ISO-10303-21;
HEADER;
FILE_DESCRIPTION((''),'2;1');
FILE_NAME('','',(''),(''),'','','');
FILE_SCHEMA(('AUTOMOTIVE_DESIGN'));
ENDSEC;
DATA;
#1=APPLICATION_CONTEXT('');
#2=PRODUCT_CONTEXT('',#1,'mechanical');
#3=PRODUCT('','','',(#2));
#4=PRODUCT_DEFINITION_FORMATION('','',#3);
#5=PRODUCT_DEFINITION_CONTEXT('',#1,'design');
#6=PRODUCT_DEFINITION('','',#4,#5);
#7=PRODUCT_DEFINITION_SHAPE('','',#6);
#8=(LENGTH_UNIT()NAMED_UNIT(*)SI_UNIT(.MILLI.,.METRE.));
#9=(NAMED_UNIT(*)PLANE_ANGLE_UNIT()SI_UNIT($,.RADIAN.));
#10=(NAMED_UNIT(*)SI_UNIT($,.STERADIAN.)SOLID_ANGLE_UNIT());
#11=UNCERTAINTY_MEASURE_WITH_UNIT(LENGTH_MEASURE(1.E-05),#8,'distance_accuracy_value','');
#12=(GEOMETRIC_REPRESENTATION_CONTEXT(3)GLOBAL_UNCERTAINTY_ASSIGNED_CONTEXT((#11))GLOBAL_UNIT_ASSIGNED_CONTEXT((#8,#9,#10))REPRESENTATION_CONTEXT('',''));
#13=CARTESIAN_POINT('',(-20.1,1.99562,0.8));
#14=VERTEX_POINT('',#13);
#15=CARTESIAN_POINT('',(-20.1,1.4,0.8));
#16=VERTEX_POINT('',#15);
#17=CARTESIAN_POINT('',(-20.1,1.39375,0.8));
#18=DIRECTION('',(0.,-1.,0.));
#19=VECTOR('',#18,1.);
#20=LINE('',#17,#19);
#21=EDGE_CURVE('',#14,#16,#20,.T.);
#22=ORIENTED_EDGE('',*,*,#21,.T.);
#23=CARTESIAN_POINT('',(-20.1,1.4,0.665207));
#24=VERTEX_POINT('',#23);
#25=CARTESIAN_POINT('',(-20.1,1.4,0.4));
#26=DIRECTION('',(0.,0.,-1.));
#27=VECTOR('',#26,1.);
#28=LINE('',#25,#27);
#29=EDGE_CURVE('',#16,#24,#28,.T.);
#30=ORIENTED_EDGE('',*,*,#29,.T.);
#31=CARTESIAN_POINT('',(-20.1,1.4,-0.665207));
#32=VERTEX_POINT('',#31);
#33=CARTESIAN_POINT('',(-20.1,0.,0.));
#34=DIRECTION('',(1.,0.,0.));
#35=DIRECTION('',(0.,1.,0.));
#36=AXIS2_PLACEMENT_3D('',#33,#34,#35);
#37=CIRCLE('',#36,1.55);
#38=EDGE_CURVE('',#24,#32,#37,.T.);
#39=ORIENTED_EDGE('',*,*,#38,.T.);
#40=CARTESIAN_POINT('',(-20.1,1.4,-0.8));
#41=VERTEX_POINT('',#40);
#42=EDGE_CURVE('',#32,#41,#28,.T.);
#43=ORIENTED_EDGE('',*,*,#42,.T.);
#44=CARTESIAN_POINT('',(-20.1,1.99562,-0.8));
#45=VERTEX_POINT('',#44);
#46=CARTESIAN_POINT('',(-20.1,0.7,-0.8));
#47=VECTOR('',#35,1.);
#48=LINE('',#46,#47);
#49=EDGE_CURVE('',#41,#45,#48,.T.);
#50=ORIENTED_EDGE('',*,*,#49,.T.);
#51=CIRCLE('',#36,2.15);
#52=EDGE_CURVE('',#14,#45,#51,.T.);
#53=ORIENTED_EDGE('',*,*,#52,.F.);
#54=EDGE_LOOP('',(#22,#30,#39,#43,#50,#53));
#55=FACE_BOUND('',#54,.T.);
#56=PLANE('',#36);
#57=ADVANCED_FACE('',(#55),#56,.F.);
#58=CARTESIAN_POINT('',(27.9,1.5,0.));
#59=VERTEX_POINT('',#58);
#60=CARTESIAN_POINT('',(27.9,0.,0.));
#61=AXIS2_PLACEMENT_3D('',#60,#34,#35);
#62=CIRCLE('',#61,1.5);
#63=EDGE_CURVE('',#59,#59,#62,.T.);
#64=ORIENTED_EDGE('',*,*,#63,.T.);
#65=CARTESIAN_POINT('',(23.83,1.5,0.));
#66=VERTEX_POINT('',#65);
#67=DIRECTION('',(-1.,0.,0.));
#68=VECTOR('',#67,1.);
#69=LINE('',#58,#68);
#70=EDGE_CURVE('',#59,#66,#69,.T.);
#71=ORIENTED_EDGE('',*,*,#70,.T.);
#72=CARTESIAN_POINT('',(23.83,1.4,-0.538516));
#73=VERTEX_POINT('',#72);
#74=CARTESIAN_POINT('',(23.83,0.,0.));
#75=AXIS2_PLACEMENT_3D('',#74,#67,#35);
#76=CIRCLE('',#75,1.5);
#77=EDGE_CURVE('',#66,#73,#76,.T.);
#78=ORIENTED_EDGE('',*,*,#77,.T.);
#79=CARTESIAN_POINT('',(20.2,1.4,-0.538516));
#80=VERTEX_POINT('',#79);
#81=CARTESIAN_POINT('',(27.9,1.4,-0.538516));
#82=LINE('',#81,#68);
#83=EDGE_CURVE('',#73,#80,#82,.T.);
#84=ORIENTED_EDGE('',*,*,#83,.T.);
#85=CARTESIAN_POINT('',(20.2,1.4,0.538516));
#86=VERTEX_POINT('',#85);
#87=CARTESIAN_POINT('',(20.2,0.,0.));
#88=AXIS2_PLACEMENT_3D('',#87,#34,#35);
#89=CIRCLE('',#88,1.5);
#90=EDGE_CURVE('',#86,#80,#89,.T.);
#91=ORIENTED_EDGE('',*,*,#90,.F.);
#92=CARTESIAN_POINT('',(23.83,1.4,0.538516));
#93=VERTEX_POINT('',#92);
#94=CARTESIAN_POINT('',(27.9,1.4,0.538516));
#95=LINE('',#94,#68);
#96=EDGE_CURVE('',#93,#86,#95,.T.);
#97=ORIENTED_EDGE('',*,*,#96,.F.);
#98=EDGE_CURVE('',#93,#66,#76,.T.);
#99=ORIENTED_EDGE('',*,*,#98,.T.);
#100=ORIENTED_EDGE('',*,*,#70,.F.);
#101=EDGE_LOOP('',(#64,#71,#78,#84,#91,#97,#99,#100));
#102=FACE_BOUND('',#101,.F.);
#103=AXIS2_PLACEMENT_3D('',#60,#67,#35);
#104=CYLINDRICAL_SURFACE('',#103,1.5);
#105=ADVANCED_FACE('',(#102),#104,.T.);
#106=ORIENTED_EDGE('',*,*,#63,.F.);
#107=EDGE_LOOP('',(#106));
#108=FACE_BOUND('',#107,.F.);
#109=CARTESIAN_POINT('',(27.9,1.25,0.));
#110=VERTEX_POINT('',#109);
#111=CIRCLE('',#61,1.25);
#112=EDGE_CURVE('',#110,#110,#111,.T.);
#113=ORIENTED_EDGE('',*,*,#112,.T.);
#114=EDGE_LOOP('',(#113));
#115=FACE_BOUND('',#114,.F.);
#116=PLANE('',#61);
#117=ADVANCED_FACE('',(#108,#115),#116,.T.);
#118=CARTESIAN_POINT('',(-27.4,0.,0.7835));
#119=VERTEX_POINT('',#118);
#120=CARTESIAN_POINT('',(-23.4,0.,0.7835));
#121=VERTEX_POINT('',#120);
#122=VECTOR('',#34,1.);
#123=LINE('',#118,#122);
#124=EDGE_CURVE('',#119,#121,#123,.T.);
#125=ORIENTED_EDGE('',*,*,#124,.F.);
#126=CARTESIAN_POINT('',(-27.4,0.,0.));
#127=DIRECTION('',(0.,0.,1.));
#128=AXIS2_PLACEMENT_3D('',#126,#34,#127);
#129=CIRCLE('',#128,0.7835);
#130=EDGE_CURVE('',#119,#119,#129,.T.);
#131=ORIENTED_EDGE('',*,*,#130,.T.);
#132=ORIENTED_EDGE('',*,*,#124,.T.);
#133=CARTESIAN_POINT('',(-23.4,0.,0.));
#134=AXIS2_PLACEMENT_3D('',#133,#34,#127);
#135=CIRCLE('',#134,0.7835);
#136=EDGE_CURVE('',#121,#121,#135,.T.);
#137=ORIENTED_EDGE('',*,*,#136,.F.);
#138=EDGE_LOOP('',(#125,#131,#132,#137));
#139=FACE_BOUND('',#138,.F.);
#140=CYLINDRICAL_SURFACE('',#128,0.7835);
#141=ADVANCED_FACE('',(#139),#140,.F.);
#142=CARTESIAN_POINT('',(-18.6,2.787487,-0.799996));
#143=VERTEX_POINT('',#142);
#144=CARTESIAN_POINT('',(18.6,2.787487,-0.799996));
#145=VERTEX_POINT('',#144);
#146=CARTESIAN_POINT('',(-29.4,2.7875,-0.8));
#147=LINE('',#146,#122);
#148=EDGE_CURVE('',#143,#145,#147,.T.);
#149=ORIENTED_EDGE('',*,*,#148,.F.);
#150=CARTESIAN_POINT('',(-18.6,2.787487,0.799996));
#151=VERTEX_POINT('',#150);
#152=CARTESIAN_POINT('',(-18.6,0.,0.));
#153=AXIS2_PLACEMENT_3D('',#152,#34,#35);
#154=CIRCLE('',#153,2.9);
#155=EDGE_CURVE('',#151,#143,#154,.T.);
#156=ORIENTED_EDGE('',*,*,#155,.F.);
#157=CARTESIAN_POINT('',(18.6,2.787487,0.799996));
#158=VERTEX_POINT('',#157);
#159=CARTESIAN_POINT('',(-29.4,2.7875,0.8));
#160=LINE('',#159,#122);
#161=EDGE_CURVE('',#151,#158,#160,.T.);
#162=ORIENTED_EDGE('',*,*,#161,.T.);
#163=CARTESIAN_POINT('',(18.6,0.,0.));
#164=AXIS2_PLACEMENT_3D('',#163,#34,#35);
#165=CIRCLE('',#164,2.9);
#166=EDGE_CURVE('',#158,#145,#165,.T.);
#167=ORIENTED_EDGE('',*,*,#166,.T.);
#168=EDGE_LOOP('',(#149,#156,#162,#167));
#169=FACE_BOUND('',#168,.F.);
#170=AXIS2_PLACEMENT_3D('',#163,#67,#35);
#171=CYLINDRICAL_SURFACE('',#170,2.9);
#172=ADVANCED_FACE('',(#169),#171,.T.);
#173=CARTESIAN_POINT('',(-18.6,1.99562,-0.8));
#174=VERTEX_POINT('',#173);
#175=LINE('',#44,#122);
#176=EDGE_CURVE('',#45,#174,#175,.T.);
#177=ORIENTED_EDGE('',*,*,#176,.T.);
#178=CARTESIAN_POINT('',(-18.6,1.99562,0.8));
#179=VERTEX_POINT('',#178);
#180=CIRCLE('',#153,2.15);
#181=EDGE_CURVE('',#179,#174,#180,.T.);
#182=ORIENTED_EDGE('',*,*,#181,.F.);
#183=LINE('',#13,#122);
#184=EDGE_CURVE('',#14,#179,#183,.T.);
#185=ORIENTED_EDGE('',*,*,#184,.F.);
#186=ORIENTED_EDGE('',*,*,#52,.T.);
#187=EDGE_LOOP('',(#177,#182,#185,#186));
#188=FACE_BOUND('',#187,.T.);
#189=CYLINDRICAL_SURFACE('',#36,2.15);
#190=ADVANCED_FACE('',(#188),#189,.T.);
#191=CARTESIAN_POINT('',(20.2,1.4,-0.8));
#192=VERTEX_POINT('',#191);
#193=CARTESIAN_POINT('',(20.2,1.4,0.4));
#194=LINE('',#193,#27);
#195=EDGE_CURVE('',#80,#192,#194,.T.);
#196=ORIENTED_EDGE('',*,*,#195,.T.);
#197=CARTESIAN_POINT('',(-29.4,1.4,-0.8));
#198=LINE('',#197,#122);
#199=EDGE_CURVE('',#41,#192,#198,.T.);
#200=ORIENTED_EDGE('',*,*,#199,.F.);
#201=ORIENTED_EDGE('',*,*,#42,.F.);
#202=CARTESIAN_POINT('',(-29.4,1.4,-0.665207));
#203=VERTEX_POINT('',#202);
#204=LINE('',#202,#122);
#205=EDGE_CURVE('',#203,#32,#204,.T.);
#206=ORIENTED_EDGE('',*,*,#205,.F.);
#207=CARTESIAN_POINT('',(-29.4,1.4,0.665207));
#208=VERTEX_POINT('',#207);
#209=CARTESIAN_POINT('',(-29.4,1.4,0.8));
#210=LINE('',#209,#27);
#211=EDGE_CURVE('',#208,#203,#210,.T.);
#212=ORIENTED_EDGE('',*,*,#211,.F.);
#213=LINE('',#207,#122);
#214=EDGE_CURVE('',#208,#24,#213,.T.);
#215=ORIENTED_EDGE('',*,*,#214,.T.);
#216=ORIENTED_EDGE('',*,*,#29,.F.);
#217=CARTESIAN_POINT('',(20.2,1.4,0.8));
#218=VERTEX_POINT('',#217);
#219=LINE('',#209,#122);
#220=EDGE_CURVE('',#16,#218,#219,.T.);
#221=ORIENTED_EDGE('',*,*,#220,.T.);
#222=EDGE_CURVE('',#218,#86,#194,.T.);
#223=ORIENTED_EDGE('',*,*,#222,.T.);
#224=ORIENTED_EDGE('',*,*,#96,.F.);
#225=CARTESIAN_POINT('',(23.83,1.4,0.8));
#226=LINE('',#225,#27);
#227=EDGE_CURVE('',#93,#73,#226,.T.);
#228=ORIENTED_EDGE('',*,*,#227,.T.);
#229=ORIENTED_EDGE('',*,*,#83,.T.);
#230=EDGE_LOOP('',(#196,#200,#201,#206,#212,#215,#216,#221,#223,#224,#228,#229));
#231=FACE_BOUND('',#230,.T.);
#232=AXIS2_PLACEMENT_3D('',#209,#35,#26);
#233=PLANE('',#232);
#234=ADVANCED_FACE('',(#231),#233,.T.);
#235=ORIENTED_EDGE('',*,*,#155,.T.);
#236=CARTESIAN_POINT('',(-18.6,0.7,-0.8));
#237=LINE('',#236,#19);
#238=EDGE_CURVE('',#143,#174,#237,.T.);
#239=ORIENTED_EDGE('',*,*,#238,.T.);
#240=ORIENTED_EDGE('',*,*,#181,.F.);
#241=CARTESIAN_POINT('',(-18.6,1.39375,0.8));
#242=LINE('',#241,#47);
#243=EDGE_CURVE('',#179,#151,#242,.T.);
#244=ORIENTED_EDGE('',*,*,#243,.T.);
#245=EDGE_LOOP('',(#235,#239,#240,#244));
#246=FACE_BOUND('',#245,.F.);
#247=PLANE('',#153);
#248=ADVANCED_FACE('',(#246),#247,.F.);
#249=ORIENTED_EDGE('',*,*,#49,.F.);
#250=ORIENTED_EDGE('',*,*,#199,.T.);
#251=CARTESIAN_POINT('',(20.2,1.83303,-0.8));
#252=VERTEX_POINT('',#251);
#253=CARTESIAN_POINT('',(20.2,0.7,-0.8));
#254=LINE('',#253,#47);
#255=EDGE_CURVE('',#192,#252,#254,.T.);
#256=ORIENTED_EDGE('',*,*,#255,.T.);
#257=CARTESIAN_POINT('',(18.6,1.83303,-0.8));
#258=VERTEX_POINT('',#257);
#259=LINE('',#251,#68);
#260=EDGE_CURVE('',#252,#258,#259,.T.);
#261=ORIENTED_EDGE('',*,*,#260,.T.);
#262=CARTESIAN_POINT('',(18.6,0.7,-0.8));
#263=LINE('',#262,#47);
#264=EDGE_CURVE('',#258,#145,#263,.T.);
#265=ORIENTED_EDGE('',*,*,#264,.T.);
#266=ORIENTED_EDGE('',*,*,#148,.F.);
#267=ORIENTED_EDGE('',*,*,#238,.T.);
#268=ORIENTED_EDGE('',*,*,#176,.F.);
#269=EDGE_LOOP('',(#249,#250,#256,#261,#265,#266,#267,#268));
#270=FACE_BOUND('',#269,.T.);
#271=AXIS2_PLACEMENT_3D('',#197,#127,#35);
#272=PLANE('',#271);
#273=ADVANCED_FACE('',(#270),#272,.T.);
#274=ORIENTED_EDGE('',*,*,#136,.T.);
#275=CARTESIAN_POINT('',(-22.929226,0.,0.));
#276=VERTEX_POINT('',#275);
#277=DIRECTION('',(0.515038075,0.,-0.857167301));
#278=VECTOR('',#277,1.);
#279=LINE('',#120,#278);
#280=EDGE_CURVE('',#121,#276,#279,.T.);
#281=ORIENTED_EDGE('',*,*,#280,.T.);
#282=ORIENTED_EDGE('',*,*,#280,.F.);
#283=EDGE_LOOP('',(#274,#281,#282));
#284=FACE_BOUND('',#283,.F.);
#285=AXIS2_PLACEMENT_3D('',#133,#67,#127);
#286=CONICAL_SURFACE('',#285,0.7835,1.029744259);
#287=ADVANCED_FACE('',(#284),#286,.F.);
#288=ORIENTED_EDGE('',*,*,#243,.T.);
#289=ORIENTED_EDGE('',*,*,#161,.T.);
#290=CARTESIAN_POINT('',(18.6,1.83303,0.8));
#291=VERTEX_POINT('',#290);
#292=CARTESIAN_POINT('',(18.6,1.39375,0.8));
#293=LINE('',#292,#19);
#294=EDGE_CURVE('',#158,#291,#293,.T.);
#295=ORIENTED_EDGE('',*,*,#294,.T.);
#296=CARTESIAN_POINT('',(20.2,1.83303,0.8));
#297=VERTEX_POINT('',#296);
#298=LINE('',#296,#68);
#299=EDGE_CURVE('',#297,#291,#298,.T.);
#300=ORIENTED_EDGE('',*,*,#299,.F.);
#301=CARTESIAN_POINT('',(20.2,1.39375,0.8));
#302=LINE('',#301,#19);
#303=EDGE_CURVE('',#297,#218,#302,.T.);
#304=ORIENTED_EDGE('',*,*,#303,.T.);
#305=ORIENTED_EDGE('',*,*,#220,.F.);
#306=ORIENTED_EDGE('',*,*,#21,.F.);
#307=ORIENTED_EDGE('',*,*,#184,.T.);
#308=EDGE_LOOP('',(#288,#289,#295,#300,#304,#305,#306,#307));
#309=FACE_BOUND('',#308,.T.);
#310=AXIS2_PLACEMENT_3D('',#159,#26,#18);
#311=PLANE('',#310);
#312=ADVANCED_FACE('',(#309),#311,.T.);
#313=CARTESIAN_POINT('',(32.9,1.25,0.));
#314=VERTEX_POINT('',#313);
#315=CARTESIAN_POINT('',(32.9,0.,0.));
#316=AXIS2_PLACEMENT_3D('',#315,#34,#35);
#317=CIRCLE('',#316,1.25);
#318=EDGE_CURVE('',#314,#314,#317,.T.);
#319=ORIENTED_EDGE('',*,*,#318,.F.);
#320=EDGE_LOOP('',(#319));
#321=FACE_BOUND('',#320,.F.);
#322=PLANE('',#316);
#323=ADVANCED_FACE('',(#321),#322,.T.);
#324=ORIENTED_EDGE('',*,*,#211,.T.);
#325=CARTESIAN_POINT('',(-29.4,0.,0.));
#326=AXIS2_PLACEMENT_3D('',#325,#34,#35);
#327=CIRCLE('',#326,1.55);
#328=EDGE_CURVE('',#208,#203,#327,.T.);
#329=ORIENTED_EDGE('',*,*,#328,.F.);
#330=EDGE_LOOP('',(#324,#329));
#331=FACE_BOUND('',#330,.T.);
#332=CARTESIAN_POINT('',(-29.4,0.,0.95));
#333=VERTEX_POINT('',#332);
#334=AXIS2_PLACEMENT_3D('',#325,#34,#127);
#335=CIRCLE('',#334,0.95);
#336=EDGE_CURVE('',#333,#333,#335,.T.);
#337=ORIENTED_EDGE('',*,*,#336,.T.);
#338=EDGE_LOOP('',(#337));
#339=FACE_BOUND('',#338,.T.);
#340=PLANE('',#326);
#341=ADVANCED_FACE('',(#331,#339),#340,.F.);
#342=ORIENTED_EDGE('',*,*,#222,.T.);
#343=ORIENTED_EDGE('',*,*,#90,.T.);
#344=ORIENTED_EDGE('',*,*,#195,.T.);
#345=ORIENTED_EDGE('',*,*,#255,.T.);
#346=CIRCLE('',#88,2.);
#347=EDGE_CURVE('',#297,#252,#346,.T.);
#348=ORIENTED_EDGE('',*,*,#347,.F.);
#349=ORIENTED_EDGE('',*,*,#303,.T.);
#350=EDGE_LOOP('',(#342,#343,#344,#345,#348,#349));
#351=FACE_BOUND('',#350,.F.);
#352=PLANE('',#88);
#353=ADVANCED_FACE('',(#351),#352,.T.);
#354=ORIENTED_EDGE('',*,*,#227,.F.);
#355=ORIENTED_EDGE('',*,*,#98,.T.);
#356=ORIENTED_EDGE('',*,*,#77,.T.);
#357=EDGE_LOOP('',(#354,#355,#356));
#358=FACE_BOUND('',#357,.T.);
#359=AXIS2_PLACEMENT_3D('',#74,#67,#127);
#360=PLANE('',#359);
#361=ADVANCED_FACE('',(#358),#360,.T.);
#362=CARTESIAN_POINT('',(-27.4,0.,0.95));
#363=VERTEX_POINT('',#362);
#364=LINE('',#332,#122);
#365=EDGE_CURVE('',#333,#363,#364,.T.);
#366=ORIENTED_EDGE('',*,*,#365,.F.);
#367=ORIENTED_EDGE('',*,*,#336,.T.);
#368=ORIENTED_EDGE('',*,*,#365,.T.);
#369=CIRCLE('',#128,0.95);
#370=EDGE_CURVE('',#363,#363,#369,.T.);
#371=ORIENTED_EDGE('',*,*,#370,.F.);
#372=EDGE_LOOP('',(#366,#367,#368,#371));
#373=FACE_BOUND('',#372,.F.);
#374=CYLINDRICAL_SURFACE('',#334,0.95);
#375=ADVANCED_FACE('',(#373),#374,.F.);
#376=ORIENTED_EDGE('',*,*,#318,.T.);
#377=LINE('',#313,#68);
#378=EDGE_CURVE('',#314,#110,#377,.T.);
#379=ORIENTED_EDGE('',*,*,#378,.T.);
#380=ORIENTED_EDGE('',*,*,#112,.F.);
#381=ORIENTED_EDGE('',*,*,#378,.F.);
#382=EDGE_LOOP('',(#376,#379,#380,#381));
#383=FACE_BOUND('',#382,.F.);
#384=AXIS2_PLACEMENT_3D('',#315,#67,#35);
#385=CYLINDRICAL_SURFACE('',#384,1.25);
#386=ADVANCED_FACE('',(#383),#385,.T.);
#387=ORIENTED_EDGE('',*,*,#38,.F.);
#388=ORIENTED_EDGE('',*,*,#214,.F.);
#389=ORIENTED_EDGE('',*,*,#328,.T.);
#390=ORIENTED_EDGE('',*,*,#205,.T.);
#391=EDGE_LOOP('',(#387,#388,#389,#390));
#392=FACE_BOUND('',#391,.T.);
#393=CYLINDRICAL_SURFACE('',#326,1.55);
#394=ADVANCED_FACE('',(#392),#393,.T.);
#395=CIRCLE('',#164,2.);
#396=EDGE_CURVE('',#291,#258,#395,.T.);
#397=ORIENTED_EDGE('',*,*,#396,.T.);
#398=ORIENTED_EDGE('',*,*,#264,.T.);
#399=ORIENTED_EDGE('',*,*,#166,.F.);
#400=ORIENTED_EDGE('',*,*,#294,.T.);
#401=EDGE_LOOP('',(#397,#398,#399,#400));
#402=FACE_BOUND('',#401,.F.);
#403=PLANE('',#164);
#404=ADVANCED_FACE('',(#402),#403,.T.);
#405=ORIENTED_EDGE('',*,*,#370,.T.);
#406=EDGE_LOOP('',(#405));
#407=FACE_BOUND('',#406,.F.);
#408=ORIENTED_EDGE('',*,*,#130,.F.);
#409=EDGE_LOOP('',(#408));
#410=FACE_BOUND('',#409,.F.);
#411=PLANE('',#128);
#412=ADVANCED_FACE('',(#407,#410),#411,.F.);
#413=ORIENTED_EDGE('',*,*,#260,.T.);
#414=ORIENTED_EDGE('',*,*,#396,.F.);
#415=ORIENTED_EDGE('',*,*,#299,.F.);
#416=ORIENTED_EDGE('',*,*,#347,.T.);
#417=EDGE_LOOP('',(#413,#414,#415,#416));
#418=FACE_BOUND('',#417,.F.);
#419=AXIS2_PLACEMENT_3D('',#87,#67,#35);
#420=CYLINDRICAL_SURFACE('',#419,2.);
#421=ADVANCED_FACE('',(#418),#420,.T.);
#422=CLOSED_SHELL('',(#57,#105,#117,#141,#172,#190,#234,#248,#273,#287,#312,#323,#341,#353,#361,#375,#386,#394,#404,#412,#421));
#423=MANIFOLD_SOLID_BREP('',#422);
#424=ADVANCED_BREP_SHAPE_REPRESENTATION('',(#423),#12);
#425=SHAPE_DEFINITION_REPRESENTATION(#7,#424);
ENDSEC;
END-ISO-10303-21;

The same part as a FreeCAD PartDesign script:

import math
import FreeCAD as App
import Part
import Sketcher


def add_polygon(sketch, points):
    """Adds a closed chain of lines whose ends are joined by coincident constraints."""
    first, n = sketch.GeometryCount, len(points)
    for a, b in zip(points, points[1:] + points[:1]):
        sketch.addGeometry(Part.LineSegment(App.Vector(*a, 0), App.Vector(*b, 0)), False)
    for i in range(n):
        sketch.addConstraint(Sketcher.Constraint("Coincident", first + i, 2, first + (i + 1) % n, 1))

doc = App.newDocument("Part")
body = doc.addObject("PartDesign::Body", "Body")

sketch1 = doc.addObject("Sketcher::SketchObject", "Sketch")
body.addObject(sketch1)
sketch1.AttachmentSupport = (doc.XY_Plane, [""])
sketch1.MapMode = "FlatFace"
add_polygon(sketch1, [(-18.6, 2.9), (-18.6, 2.15), (-20.1, 2.15), (-20.1, 1.55), (-29.4, 1.55), (-29.4, 0), (32.9, 0), (32.9, 1.25), (27.9, 1.25), (27.9, 1.5), (20.2, 1.5), (20.2, 2), (18.6, 2), (18.6, 2.9)])
sketch1.addConstraint([
    Sketcher.Constraint("Vertical", 0),
    Sketcher.Constraint("Horizontal", 1),
    Sketcher.Constraint("Vertical", 2),
    Sketcher.Constraint("Horizontal", 3),
    Sketcher.Constraint("Vertical", 4),
    Sketcher.Constraint("Horizontal", 5),
    Sketcher.Constraint("Vertical", 6),
    Sketcher.Constraint("Horizontal", 7),
    Sketcher.Constraint("Vertical", 8),
    Sketcher.Constraint("Horizontal", 9),
    Sketcher.Constraint("Vertical", 10),
    Sketcher.Constraint("Horizontal", 11),
    Sketcher.Constraint("Vertical", 12),
    Sketcher.Constraint("Horizontal", 13),
    Sketcher.Constraint("PointOnObject", 4, 2, -1),
    Sketcher.Constraint("DistanceX", 7, 2, 7, 1, 5.0),
    Sketcher.Constraint("DistanceX", 3, 2, 3, 1, 9.3),
    Sketcher.Constraint("DistanceX", 5, 1, 5, 2, 62.3),
    Sketcher.Constraint("DistanceX", 3, 2, 0, 2, 10.8),
    Sketcher.Constraint("DistanceX", 11, 2, 8, 2, 9.3),
    Sketcher.Constraint("DistanceX", 9, 2, 9, 1, 7.7),
    Sketcher.Constraint("DistanceY", 2, 2, 2, 1, 0.6),
    Sketcher.Constraint("DistanceY", 10, 1, 10, 2, 0.5),
    Sketcher.Constraint("DistanceY", 12, 1, 12, 2, 0.9),
    Sketcher.Constraint("DistanceY", -1, 1, 10, 2, 2.0),
    Sketcher.Constraint("DistanceY", 0, 2, 0, 1, 0.75),
    Sketcher.Constraint("DistanceY", 6, 1, 6, 2, 1.25),
    Sketcher.Constraint("DistanceX", 0, 2, -1, 1, 18.6),
])
revolution = doc.addObject("PartDesign::Revolution", "Revolution")
body.addObject(revolution)
revolution.Profile = sketch1
revolution.ReferenceAxis = (sketch1, ["H_Axis"])
revolution.Angle = 360

sketch2 = doc.addObject("Sketcher::SketchObject", "Sketch001")
body.addObject(sketch2)
sketch2.AttachmentSupport = (doc.YZ_Plane, [""])
sketch2.MapMode = "FlatFace"
sketch2.AttachmentOffset = App.Placement(App.Vector(0, 0, -29.4), App.Rotation())
sketch2.addGeometry(Part.Circle(App.Vector(0, 0, 0), App.Vector(0, 0, 1), 0.8), False)
sketch2.addConstraint([
    Sketcher.Constraint("Coincident", 0, 3, -1, 1),
    Sketcher.Constraint("Diameter", 0, 1.567),
])
doc.recompute()
hole = doc.addObject("PartDesign::Hole", "Hole")
body.addObject(hole)
hole.Profile = sketch2
hole.ThreadType = "None"
hole.Diameter = 1.567
hole.DepthType = "Dimension"
hole.Depth = 6
hole.DrillPoint = "Angled"
hole.DrillPointAngle = 118
hole.HoleCutType = "Counterbore"
hole.HoleCutDiameter = 1.9
hole.HoleCutDepth = 2
hole.Reversed = True

sketch3 = doc.addObject("Sketcher::SketchObject", "Sketch002")
body.addObject(sketch3)
sketch3.AttachmentSupport = (doc.YZ_Plane, [""])
sketch3.MapMode = "FlatFace"
sketch3.AttachmentOffset = App.Placement(App.Vector(0, 0, -29.4), App.Rotation())
sketch3.addGeometry([
    Part.ArcOfCircle(Part.Circle(App.Vector(0, 0, 0), App.Vector(0, 0, 1), 2.9), math.radians(-16), math.radians(16)),
    Part.LineSegment(App.Vector(2.8, -0.8, 0), App.Vector(1.4, -0.8, 0)),
    Part.LineSegment(App.Vector(1.4, -0.8, 0), App.Vector(1.4, 0.8, 0)),
    Part.LineSegment(App.Vector(1.4, 0.8, 0), App.Vector(2.8, 0.8, 0)),
], False)
sketch3.addConstraint([
    Sketcher.Constraint("Coincident", 0, 1, 1, 1),
    Sketcher.Constraint("Coincident", 1, 2, 2, 1),
    Sketcher.Constraint("Coincident", 2, 2, 3, 1),
    Sketcher.Constraint("Coincident", 3, 2, 0, 2),
    Sketcher.Constraint("Horizontal", 1),
    Sketcher.Constraint("Vertical", 2),
    Sketcher.Constraint("Horizontal", 3),
    Sketcher.Constraint("Coincident", 0, 3, -1, 1),
    Sketcher.Constraint("Vertical", 0, 1, 3, 2),
    Sketcher.Constraint("DistanceY", 2, 1, 2, 2, 1.6),
    Sketcher.Constraint("Radius", 0, 2.9),
    Sketcher.Constraint("DistanceX", -1, 1, 1, 2, 1.4),
])
pocket1 = doc.addObject("PartDesign::Pocket", "Pocket")
body.addObject(pocket1)
pocket1.Profile = sketch3
pocket1.Length = 53.23
pocket1.Reversed = True

doc.recompute()
